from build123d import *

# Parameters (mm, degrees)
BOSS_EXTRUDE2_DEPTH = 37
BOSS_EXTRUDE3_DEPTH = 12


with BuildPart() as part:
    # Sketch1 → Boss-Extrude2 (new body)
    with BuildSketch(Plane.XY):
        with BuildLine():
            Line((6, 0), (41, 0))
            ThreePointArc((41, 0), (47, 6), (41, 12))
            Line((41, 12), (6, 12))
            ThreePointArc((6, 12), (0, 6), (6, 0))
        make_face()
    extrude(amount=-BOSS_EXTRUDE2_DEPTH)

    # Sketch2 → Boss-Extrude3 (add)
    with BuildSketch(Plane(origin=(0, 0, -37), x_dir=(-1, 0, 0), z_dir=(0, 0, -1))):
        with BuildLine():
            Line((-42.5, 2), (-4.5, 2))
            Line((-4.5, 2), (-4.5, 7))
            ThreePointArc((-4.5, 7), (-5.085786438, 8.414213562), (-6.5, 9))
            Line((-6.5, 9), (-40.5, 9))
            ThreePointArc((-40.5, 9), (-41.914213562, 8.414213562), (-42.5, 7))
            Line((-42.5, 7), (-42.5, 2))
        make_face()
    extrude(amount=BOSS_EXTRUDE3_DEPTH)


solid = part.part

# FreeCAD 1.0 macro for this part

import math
import FreeCAD as App
import Part
import Sketcher
Q = App.Units.Quantity

doc = App.newDocument("Part")
params = doc.addObject("Spreadsheet::Sheet", "Params")
for row, (alias, value) in enumerate([
    ("sketch1_radius", "6 mm"),
    ("sketch1_width", "35 mm"),
    ("pad1_length", "37 mm"),
    ("sketch2_radius", "2 mm"),
    ("sketch2_width", "38 mm"),
    ("sketch2_height", "5 mm"),
    ("pad2_length", "12 mm"),
], start=1):
    params.set(f"A{row}", alias)
    params.set(f"B{row}", "=" + value)
    params.setAlias(f"B{row}", alias)

body = doc.addObject("PartDesign::Body", "Body")

# Sketch on XY plane
sketch1 = body.newObject("Sketcher::SketchObject", "Sketch")
sketch1.AttachmentSupport = (doc.getObject("XY_Plane"), [""])
sketch1.MapMode = "FlatFace"
sketch1.addGeometry([
    Part.LineSegment(App.Vector(6, 0, 0), App.Vector(41, 0, 0)),
    Part.ArcOfCircle(Part.Circle(App.Vector(41, 6, 0), App.Vector(0, 0, 1), 6), math.radians(-90), math.radians(90)),
    Part.LineSegment(App.Vector(41, 12, 0), App.Vector(6, 12, 0)),
    Part.ArcOfCircle(Part.Circle(App.Vector(6, 6, 0), App.Vector(0, 0, 1), 6), math.radians(90), math.radians(270)),
], False)
sketch1.addConstraint([
    Sketcher.Constraint("Tangent", 0, 2, 1, 1),
    Sketcher.Constraint("Tangent", 1, 2, 2, 1),
    Sketcher.Constraint("Tangent", 2, 2, 3, 1),
    Sketcher.Constraint("Tangent", 3, 2, 0, 1),
    Sketcher.Constraint("Horizontal", 0),
    Sketcher.Constraint("Horizontal", 2),
    Sketcher.Constraint("PointOnObject", 0, 2, -1),
    Sketcher.Constraint("Radius", 1, Q("6 mm")),
    Sketcher.Constraint("DistanceX", 0, 1, 0, 2, Q("35 mm")),
    Sketcher.Constraint("DistanceX", -1, 1, 1, 3, Q("41 mm")),
])
sketch1.setExpression("Constraints[7]", "Params.sketch1_radius")
sketch1.setExpression("Constraints[8]", "Params.sketch1_width")
pad1 = body.newObject("PartDesign::Pad", "Pad")
pad1.Profile = sketch1
pad1.setExpression("Length", "Params.pad1_length")
pad1.Reversed = True

# Sketch on XY plane
sketch2 = body.newObject("Sketcher::SketchObject", "Sketch001")
sketch2.AttachmentSupport = (doc.getObject("XY_Plane"), [""])
sketch2.MapMode = "FlatFace"
sketch2.AttachmentOffset = App.Placement(App.Vector(0, 0, -37), App.Rotation())
sketch2.addGeometry([
    Part.LineSegment(App.Vector(42.5, 2, 0), App.Vector(4.5, 2, 0)),  # 0
    Part.LineSegment(App.Vector(4.5, 2, 0), App.Vector(4.5, 7, 0)),  # 1
    Part.ArcOfCircle(Part.Circle(App.Vector(6.5, 7, 0), App.Vector(0, 0, 1), 2), math.radians(90), math.radians(180)),  # 2
    Part.LineSegment(App.Vector(6.5, 9, 0), App.Vector(40.5, 9, 0)),  # 3
    Part.ArcOfCircle(Part.Circle(App.Vector(40.5, 7, 0), App.Vector(0, 0, 1), 2), math.radians(0), math.radians(90)),  # 4
    Part.LineSegment(App.Vector(42.5, 7, 0), App.Vector(42.5, 2, 0)),  # 5
], False)
sketch2.addConstraint([
    Sketcher.Constraint("Coincident", 0, 2, 1, 1),
    Sketcher.Constraint("Tangent", 1, 2, 2, 2),
    Sketcher.Constraint("Tangent", 2, 1, 3, 1),
    Sketcher.Constraint("Tangent", 3, 2, 4, 2),
    Sketcher.Constraint("Tangent", 4, 1, 5, 1),
    Sketcher.Constraint("Coincident", 5, 2, 0, 1),
    Sketcher.Constraint("Horizontal", 0),
    Sketcher.Constraint("Vertical", 1),
    Sketcher.Constraint("Horizontal", 3),
    Sketcher.Constraint("Vertical", 5),
    Sketcher.Constraint("Equal", 2, 4),
    Sketcher.Constraint("Radius", 2, Q("2 mm")),
    Sketcher.Constraint("DistanceX", 0, 2, 0, 1, Q("38 mm")),
    Sketcher.Constraint("DistanceY", 1, 1, 1, 2, Q("5 mm")),
    Sketcher.Constraint("DistanceY", -1, 1, 2, 3, Q("7 mm")),
    Sketcher.Constraint("DistanceX", -1, 1, 2, 3, Q("6.5 mm")),
])
sketch2.setExpression("Constraints[11]", "Params.sketch2_radius")
sketch2.setExpression("Constraints[12]", "Params.sketch2_width")
sketch2.setExpression("Constraints[13]", "Params.sketch2_height")
pad2 = body.newObject("PartDesign::Pad", "Pad001")
pad2.Profile = sketch2
pad2.setExpression("Length", "Params.pad2_length")
pad2.Reversed = True

doc.recompute()
